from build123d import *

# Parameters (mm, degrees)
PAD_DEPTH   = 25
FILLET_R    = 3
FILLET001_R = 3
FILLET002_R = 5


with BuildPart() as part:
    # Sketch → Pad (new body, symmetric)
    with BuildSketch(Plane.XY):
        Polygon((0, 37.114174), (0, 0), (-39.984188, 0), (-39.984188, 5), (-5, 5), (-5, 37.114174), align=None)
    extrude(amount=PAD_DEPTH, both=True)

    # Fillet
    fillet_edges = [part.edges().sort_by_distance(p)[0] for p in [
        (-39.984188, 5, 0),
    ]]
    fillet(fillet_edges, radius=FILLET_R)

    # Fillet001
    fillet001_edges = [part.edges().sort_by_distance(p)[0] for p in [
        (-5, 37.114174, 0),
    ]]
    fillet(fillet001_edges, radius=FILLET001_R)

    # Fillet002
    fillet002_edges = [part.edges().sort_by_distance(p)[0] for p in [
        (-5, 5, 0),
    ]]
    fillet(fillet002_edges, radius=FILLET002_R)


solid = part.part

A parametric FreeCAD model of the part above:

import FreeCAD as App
import Part
import Sketcher


def edges_at(feature, points):
    """Names of the edges that pass closest to the given points."""
    edges = feature.Shape.Edges
    near = lambda p: min(range(len(edges)), key=lambda i: edges[i].distToShape(Part.Vertex(*p))[0])
    return sorted({f"Edge{near(p) + 1}" for p in points})


def add_polygon(sketch, points):
    """Adds a closed chain of lines whose ends are joined by coincident constraints."""
    first, n = sketch.GeometryCount, len(points)
    for a, b in zip(points, points[1:] + points[:1]):
        sketch.addGeometry(Part.LineSegment(App.Vector(*a, 0), App.Vector(*b, 0)), False)
    for i in range(n):
        sketch.addConstraint(Sketcher.Constraint("Coincident", first + i, 2, first + (i + 1) % n, 1))

doc = App.newDocument("Part")
params = doc.addObject("Spreadsheet::Sheet", "Params")
for row, (alias, value) in enumerate([
    ("sketch1_width", "5 mm"),
    ("pad1_length", "50 mm"),
    ("fillet_radius", "3 mm"),
    ("fillet2_radius", "3 mm"),
    ("fillet3_radius", "5 mm"),
], start=1):
    params.set(f"A{row}", alias)
    params.set(f"B{row}", "=" + value)
    params.setAlias(f"B{row}", alias)

body = doc.addObject("PartDesign::Body", "Body")

# Sketch on XY plane
sketch1 = body.newObject("Sketcher::SketchObject", "Sketch")
sketch1.AttachmentSupport = (doc.getObject("XY_Plane"), [""])
sketch1.MapMode = "FlatFace"
add_polygon(sketch1, [(0, 0), (0, 37), (-5, 37), (-5, 5), (-40, 5), (-40, 0)])  # lines 0-5
sketch1.addConstraint([
    Sketcher.Constraint("Vertical", 0),
    Sketcher.Constraint("Horizontal", 1),
    Sketcher.Constraint("Vertical", 2),
    Sketcher.Constraint("Horizontal", 3),
    Sketcher.Constraint("Vertical", 4),
    Sketcher.Constraint("Horizontal", 5),
    Sketcher.Constraint("Coincident", 5, 2, -1, 1),
    Sketcher.Constraint("Equal", 1, 4),
    Sketcher.Constraint("DistanceX", 1, 2, 1, 1, 5.0),
    Sketcher.Constraint("DistanceX", 3, 2, 3, 1, 34.984188),
    Sketcher.Constraint("DistanceY", 0, 1, 0, 2, 37.114174),
])
sketch1.setExpression("Constraints[14]", "Params.sketch1_width")
pad1 = body.newObject("PartDesign::Pad", "Pad")
pad1.Profile = sketch1
pad1.setExpression("Length", "Params.pad1_length")
pad1.Midplane = True
doc.recompute()

fillet = body.newObject("PartDesign::Fillet", "Fillet")
fillet.Base = (pad1, edges_at(pad1, [(-39.984, 5, 0)]))
fillet.setExpression("Radius", "Params.fillet_radius")
doc.recompute()

fillet2 = body.newObject("PartDesign::Fillet", "Fillet001")
fillet2.Base = (fillet, edges_at(fillet, [(-5, 37.114, 0)]))
fillet2.setExpression("Radius", "Params.fillet2_radius")
doc.recompute()

fillet3 = body.newObject("PartDesign::Fillet", "Fillet002")
fillet3.Base = (fillet2, edges_at(fillet2, [(-5, 5, 0)]))
fillet3.setExpression("Radius", "Params.fillet3_radius")

doc.recompute()
